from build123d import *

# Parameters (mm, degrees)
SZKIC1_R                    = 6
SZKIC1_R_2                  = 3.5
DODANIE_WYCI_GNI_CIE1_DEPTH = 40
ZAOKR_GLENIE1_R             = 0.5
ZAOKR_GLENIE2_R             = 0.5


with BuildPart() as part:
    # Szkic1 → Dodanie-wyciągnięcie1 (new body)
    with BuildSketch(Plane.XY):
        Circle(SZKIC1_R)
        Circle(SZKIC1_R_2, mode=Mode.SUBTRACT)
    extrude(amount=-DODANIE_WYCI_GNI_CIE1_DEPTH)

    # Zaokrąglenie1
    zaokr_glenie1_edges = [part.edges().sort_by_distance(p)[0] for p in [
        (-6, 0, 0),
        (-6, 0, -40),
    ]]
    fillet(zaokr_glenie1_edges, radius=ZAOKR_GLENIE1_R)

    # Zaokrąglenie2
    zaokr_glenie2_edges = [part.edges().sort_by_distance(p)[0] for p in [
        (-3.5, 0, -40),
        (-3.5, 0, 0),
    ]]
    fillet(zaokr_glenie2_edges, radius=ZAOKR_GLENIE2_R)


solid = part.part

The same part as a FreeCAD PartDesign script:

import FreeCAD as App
import Part
import Sketcher


def edges_at(feature, points):
    """Names of the edges that pass closest to the given points."""
    edges = feature.Shape.Edges
    near = lambda p: min(range(len(edges)), key=lambda i: edges[i].distToShape(Part.Vertex(*p))[0])
    return sorted({f"Edge{near(p) + 1}" for p in points})

doc = App.newDocument("Part")
body = doc.addObject("PartDesign::Body", "Body")

# Sketch on XY plane
sketch1 = body.newObject("Sketcher::SketchObject", "Sketch")
sketch1.AttachmentSupport = (doc.getObject("XY_Plane"), [""])
sketch1.MapMode = "FlatFace"
sketch1.addGeometry([
    Part.Circle(App.Vector(0, 0, 0), App.Vector(0, 0, 1), 6),
    Part.Circle(App.Vector(0, 0, 0), App.Vector(0, 0, 1), 3.5),
], False)
sketch1.addConstraint([
    Sketcher.Constraint("Coincident", 0, 3, -1, 1),
    Sketcher.Constraint("Coincident", 1, 3, -1, 1),
    Sketcher.Constraint("Diameter", 0, 12.0),
    Sketcher.Constraint("Diameter", 1, 7.0),
])
pad1 = body.newObject("PartDesign::Pad", "Pad")
pad1.Profile = sketch1
pad1.Length = 40
pad1.Reversed = True
doc.recompute()

fillet = body.newObject("PartDesign::Fillet", "Fillet")
fillet.Base = (pad1, edges_at(pad1, [(-6, 0, 0), (-6, 0, -40)]))
fillet.Radius = 0.5
doc.recompute()

fillet2 = body.newObject("PartDesign::Fillet", "Fillet001")
fillet2.Base = (fillet, edges_at(fillet, [(-3.5, 0, -40), (-3.5, 0, 0)]))
fillet2.Radius = 0.5

doc.recompute()
